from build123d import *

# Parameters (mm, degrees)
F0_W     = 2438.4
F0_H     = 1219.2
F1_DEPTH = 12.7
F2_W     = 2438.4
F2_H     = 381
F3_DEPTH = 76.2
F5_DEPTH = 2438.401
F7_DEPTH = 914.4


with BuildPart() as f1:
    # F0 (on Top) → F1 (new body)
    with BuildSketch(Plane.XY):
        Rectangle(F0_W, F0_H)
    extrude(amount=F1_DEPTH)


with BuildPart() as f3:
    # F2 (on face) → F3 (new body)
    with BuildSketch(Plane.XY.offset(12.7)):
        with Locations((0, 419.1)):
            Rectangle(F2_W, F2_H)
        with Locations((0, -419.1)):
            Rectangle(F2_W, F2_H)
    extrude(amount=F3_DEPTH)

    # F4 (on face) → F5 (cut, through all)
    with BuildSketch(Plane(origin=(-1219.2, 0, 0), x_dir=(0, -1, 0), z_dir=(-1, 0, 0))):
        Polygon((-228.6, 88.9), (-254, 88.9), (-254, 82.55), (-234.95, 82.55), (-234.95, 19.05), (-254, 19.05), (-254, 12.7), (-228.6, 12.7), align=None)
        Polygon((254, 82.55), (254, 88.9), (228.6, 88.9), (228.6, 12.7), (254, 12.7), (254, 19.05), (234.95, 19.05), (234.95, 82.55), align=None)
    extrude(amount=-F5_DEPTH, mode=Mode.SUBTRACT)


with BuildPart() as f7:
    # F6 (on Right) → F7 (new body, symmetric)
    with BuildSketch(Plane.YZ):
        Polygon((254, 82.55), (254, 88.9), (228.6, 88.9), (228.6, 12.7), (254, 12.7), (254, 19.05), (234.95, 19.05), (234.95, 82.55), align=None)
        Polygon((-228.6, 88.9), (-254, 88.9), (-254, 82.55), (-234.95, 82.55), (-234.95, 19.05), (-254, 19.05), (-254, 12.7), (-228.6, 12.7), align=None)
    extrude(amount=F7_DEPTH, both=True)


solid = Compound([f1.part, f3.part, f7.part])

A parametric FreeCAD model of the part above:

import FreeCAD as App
import Part
import Sketcher
from FreeCAD import Vector
Q = App.Units.Quantity


def add_polygon(sketch, points):
    """Adds a closed chain of lines whose ends are joined by coincident constraints."""
    first, n = sketch.GeometryCount, len(points)
    for a, b in zip(points, points[1:] + points[:1]):
        sketch.addGeometry(Part.LineSegment(App.Vector(*a, 0), App.Vector(*b, 0)), False)
    for i in range(n):
        sketch.addConstraint(Sketcher.Constraint("Coincident", first + i, 2, first + (i + 1) % n, 1))

doc = App.newDocument("Part")
body = doc.addObject("PartDesign::Body", "Body")

# Sketch on XY plane
sketch1 = body.newObject("Sketcher::SketchObject", "Sketch")
sketch1.AttachmentSupport = (doc.getObject("XY_Plane"), [""])
sketch1.MapMode = "FlatFace"
add_polygon(sketch1, [(-1219, 610), (-1219, -610), (1219, -610), (1219, 610)])  # lines 0-3
sketch1.addConstraint(Sketcher.Constraint("Vertical", 0))
sketch1.addConstraint(Sketcher.Constraint("Horizontal", 1))
sketch1.addConstraint(Sketcher.Constraint("Vertical", 2))
sketch1.addConstraint(Sketcher.Constraint("Horizontal", 3))
sketch1.addConstraint(Sketcher.Constraint("Symmetric", 0, 2, 2, 2, -1, 1))
sketch1.addConstraint(Sketcher.Constraint("DistanceX", 1, 1, 1, 2, Q("96 in")))
sketch1.addConstraint(Sketcher.Constraint("DistanceY", 0, 2, 0, 1, Q("48 in")))
pad1 = body.newObject("PartDesign::Pad", "Pad")
pad1.Profile = sketch1
pad1.Length = Q("0.5 in")
body2 = doc.addObject("PartDesign::Body", "Body001")
body2.AllowCompound = True

# Sketch on XY plane
sketch2 = body2.newObject("Sketcher::SketchObject", "Sketch001")
sketch2.AttachmentSupport = (doc.getObject("XY_Plane001"), [""])
sketch2.MapMode = "FlatFace"
sketch2.AttachmentOffset = App.Placement(Vector(0, 0, 0.5 * 25.4), App.Rotation())
add_polygon(sketch2, [(-1219, 610), (-1219, 229), (1219, 229), (1219, 610)])  # lines 0-3
add_polygon(sketch2, [(-1219, -229), (-1219, -610), (1219, -610), (1219, -229)])  # lines 4-7
sketch2.addConstraint(Sketcher.Constraint("Vertical", 0))
sketch2.addConstraint(Sketcher.Constraint("Horizontal", 1))
sketch2.addConstraint(Sketcher.Constraint("Vertical", 2))
sketch2.addConstraint(Sketcher.Constraint("Horizontal", 3))
sketch2.addConstraint(Sketcher.Constraint("Vertical", 4))
sketch2.addConstraint(Sketcher.Constraint("Horizontal", 5))
sketch2.addConstraint(Sketcher.Constraint("Vertical", 6))
sketch2.addConstraint(Sketcher.Constraint("Horizontal", 7))
sketch2.addConstraint(Sketcher.Constraint("Symmetric", 2, 2, 4, 2, -1, 1))
sketch2.addConstraint(Sketcher.Constraint("Symmetric", 0, 2, 6, 2, -1, 1))
sketch2.addConstraint(Sketcher.Constraint("Vertical", 3, 2, 4, 2))
sketch2.addConstraint(Sketcher.Constraint("DistanceX", 1, 1, 1, 2, Q("96 in")))
sketch2.addConstraint(Sketcher.Constraint("DistanceY", 0, 2, 0, 1, Q("15 in")))
sketch2.addConstraint(Sketcher.Constraint("DistanceY", -1, 1, 0, 2, Q("9 in")))
pad2 = body2.newObject("PartDesign::Pad", "Pad001")
pad2.Profile = sketch2
pad2.Length = Q("3 in")

# Sketch on YZ plane
sketch3 = body2.newObject("Sketcher::SketchObject", "Sketch002")
sketch3.AttachmentSupport = (doc.getObject("YZ_Plane001"), [""])
sketch3.MapMode = "FlatFace"
sketch3.AttachmentOffset = App.Placement(Vector(0, 0, -48 * 25.4), App.Rotation())
add_polygon(sketch3, [(229, 89), (254, 89), (254, 83), (235, 83), (235, 19), (254, 19), (254, 13), (229, 13)])  # lines 0-7
add_polygon(sketch3, [(-254, 83), (-254, 89), (-229, 89), (-229, 13), (-254, 13), (-254, 19), (-235, 19), (-235, 83)])  # lines 8-15
sketch3.addConstraint(Sketcher.Constraint("Horizontal", 0))
sketch3.addConstraint(Sketcher.Constraint("Vertical", 1))
sketch3.addConstraint(Sketcher.Constraint("Horizontal", 2))
sketch3.addConstraint(Sketcher.Constraint("Vertical", 3))
sketch3.addConstraint(Sketcher.Constraint("Horizontal", 4))
sketch3.addConstraint(Sketcher.Constraint("Vertical", 5))
sketch3.addConstraint(Sketcher.Constraint("Horizontal", 6))
sketch3.addConstraint(Sketcher.Constraint("Vertical", 7))
sketch3.addConstraint(Sketcher.Constraint("Vertical", 8))
sketch3.addConstraint(Sketcher.Constraint("Horizontal", 9))
sketch3.addConstraint(Sketcher.Constraint("Vertical", 10))
sketch3.addConstraint(Sketcher.Constraint("Horizontal", 11))
sketch3.addConstraint(Sketcher.Constraint("Vertical", 12))
sketch3.addConstraint(Sketcher.Constraint("Horizontal", 13))
sketch3.addConstraint(Sketcher.Constraint("Vertical", 14))
sketch3.addConstraint(Sketcher.Constraint("Horizontal", 15))
sketch3.addConstraint(Sketcher.Constraint("Symmetric", 0, 2, 8, 2, -2))
sketch3.addConstraint(Sketcher.Constraint("Symmetric", 6, 2, 10, 2, -2))
sketch3.addConstraint(Sketcher.Constraint("Symmetric", 4, 2, 12, 2, -2))
sketch3.addConstraint(Sketcher.Constraint("Symmetric", 2, 2, 14, 2, -2))
sketch3.addConstraint(Sketcher.Constraint("Vertical", 1, 2, 4, 2))
sketch3.addConstraint(Sketcher.Constraint("Equal", 1, 5))
sketch3.addConstraint(Sketcher.Constraint("DistanceX", 0, 1, 0, 2, Q("1 in")))
sketch3.addConstraint(Sketcher.Constraint("DistanceY", 7, 1, 7, 2, Q("3 in")))
sketch3.addConstraint(Sketcher.Constraint("DistanceY", 3, 2, 3, 1, Q("2.5 in")))
sketch3.addConstraint(Sketcher.Constraint("DistanceX", -1, 1, 0, 2, Q("10 in")))
sketch3.addConstraint(Sketcher.Constraint("DistanceX", 2, 2, 2, 1, Q("0.75 in")))
sketch3.addConstraint(Sketcher.Constraint("DistanceY", -1, 1, 0, 2, Q("3.5 in")))
pocket1 = body2.newObject("PartDesign::Pocket", "Pocket")
pocket1.Profile = sketch3
pocket1.Type = "ThroughAll"
pocket1.Reversed = True
body3 = doc.addObject("PartDesign::Body", "Body002")
body3.AllowCompound = True

# Sketch on YZ plane
sketch4 = body3.newObject("Sketcher::SketchObject", "Sketch003")
sketch4.AttachmentSupport = (doc.getObject("YZ_Plane002"), [""])
sketch4.MapMode = "FlatFace"
add_polygon(sketch4, [(254, 83), (254, 89), (229, 89), (229, 13), (254, 13), (254, 19), (235, 19), (235, 83)])  # lines 0-7
add_polygon(sketch4, [(-229, 89), (-254, 89), (-254, 83), (-235, 83), (-235, 19), (-254, 19), (-254, 13), (-229, 13)])  # lines 8-15
sketch4.addConstraint(Sketcher.Constraint("Vertical", 0))
sketch4.addConstraint(Sketcher.Constraint("Horizontal", 1))
sketch4.addConstraint(Sketcher.Constraint("Vertical", 2))
sketch4.addConstraint(Sketcher.Constraint("Horizontal", 3))
sketch4.addConstraint(Sketcher.Constraint("Vertical", 4))
sketch4.addConstraint(Sketcher.Constraint("Horizontal", 5))
sketch4.addConstraint(Sketcher.Constraint("Vertical", 6))
sketch4.addConstraint(Sketcher.Constraint("Horizontal", 7))
sketch4.addConstraint(Sketcher.Constraint("Horizontal", 8))
sketch4.addConstraint(Sketcher.Constraint("Vertical", 9))
sketch4.addConstraint(Sketcher.Constraint("Horizontal", 10))
sketch4.addConstraint(Sketcher.Constraint("Vertical", 11))
sketch4.addConstraint(Sketcher.Constraint("Horizontal", 12))
sketch4.addConstraint(Sketcher.Constraint("Vertical", 13))
sketch4.addConstraint(Sketcher.Constraint("Horizontal", 14))
sketch4.addConstraint(Sketcher.Constraint("Vertical", 15))
sketch4.addConstraint(Sketcher.Constraint("Symmetric", 0, 2, 8, 2, -2))
sketch4.addConstraint(Sketcher.Constraint("Symmetric", 6, 2, 10, 2, -2))
sketch4.addConstraint(Sketcher.Constraint("Symmetric", 4, 2, 12, 2, -2))
sketch4.addConstraint(Sketcher.Constraint("Symmetric", 2, 2, 14, 2, -2))
sketch4.addConstraint(Sketcher.Constraint("Vertical", 0, 2, 3, 2))
sketch4.addConstraint(Sketcher.Constraint("Equal", 0, 4))
sketch4.addConstraint(Sketcher.Constraint("DistanceX", 1, 2, 1, 1, Q("1 in")))
sketch4.addConstraint(Sketcher.Constraint("DistanceY", 2, 2, 2, 1, Q("3 in")))
sketch4.addConstraint(Sketcher.Constraint("DistanceY", 6, 1, 6, 2, Q("2.5 in")))
sketch4.addConstraint(Sketcher.Constraint("DistanceX", -1, 1, 0, 2, Q("10 in")))
sketch4.addConstraint(Sketcher.Constraint("DistanceX", 5, 2, 5, 1, Q("0.75 in")))
sketch4.addConstraint(Sketcher.Constraint("DistanceY", -1, 1, 0, 2, Q("3.5 in")))
pad3 = body3.newObject("PartDesign::Pad", "Pad002")
pad3.Profile = sketch4
pad3.Length = Q("72 in")
pad3.Midplane = True

doc.recompute()
